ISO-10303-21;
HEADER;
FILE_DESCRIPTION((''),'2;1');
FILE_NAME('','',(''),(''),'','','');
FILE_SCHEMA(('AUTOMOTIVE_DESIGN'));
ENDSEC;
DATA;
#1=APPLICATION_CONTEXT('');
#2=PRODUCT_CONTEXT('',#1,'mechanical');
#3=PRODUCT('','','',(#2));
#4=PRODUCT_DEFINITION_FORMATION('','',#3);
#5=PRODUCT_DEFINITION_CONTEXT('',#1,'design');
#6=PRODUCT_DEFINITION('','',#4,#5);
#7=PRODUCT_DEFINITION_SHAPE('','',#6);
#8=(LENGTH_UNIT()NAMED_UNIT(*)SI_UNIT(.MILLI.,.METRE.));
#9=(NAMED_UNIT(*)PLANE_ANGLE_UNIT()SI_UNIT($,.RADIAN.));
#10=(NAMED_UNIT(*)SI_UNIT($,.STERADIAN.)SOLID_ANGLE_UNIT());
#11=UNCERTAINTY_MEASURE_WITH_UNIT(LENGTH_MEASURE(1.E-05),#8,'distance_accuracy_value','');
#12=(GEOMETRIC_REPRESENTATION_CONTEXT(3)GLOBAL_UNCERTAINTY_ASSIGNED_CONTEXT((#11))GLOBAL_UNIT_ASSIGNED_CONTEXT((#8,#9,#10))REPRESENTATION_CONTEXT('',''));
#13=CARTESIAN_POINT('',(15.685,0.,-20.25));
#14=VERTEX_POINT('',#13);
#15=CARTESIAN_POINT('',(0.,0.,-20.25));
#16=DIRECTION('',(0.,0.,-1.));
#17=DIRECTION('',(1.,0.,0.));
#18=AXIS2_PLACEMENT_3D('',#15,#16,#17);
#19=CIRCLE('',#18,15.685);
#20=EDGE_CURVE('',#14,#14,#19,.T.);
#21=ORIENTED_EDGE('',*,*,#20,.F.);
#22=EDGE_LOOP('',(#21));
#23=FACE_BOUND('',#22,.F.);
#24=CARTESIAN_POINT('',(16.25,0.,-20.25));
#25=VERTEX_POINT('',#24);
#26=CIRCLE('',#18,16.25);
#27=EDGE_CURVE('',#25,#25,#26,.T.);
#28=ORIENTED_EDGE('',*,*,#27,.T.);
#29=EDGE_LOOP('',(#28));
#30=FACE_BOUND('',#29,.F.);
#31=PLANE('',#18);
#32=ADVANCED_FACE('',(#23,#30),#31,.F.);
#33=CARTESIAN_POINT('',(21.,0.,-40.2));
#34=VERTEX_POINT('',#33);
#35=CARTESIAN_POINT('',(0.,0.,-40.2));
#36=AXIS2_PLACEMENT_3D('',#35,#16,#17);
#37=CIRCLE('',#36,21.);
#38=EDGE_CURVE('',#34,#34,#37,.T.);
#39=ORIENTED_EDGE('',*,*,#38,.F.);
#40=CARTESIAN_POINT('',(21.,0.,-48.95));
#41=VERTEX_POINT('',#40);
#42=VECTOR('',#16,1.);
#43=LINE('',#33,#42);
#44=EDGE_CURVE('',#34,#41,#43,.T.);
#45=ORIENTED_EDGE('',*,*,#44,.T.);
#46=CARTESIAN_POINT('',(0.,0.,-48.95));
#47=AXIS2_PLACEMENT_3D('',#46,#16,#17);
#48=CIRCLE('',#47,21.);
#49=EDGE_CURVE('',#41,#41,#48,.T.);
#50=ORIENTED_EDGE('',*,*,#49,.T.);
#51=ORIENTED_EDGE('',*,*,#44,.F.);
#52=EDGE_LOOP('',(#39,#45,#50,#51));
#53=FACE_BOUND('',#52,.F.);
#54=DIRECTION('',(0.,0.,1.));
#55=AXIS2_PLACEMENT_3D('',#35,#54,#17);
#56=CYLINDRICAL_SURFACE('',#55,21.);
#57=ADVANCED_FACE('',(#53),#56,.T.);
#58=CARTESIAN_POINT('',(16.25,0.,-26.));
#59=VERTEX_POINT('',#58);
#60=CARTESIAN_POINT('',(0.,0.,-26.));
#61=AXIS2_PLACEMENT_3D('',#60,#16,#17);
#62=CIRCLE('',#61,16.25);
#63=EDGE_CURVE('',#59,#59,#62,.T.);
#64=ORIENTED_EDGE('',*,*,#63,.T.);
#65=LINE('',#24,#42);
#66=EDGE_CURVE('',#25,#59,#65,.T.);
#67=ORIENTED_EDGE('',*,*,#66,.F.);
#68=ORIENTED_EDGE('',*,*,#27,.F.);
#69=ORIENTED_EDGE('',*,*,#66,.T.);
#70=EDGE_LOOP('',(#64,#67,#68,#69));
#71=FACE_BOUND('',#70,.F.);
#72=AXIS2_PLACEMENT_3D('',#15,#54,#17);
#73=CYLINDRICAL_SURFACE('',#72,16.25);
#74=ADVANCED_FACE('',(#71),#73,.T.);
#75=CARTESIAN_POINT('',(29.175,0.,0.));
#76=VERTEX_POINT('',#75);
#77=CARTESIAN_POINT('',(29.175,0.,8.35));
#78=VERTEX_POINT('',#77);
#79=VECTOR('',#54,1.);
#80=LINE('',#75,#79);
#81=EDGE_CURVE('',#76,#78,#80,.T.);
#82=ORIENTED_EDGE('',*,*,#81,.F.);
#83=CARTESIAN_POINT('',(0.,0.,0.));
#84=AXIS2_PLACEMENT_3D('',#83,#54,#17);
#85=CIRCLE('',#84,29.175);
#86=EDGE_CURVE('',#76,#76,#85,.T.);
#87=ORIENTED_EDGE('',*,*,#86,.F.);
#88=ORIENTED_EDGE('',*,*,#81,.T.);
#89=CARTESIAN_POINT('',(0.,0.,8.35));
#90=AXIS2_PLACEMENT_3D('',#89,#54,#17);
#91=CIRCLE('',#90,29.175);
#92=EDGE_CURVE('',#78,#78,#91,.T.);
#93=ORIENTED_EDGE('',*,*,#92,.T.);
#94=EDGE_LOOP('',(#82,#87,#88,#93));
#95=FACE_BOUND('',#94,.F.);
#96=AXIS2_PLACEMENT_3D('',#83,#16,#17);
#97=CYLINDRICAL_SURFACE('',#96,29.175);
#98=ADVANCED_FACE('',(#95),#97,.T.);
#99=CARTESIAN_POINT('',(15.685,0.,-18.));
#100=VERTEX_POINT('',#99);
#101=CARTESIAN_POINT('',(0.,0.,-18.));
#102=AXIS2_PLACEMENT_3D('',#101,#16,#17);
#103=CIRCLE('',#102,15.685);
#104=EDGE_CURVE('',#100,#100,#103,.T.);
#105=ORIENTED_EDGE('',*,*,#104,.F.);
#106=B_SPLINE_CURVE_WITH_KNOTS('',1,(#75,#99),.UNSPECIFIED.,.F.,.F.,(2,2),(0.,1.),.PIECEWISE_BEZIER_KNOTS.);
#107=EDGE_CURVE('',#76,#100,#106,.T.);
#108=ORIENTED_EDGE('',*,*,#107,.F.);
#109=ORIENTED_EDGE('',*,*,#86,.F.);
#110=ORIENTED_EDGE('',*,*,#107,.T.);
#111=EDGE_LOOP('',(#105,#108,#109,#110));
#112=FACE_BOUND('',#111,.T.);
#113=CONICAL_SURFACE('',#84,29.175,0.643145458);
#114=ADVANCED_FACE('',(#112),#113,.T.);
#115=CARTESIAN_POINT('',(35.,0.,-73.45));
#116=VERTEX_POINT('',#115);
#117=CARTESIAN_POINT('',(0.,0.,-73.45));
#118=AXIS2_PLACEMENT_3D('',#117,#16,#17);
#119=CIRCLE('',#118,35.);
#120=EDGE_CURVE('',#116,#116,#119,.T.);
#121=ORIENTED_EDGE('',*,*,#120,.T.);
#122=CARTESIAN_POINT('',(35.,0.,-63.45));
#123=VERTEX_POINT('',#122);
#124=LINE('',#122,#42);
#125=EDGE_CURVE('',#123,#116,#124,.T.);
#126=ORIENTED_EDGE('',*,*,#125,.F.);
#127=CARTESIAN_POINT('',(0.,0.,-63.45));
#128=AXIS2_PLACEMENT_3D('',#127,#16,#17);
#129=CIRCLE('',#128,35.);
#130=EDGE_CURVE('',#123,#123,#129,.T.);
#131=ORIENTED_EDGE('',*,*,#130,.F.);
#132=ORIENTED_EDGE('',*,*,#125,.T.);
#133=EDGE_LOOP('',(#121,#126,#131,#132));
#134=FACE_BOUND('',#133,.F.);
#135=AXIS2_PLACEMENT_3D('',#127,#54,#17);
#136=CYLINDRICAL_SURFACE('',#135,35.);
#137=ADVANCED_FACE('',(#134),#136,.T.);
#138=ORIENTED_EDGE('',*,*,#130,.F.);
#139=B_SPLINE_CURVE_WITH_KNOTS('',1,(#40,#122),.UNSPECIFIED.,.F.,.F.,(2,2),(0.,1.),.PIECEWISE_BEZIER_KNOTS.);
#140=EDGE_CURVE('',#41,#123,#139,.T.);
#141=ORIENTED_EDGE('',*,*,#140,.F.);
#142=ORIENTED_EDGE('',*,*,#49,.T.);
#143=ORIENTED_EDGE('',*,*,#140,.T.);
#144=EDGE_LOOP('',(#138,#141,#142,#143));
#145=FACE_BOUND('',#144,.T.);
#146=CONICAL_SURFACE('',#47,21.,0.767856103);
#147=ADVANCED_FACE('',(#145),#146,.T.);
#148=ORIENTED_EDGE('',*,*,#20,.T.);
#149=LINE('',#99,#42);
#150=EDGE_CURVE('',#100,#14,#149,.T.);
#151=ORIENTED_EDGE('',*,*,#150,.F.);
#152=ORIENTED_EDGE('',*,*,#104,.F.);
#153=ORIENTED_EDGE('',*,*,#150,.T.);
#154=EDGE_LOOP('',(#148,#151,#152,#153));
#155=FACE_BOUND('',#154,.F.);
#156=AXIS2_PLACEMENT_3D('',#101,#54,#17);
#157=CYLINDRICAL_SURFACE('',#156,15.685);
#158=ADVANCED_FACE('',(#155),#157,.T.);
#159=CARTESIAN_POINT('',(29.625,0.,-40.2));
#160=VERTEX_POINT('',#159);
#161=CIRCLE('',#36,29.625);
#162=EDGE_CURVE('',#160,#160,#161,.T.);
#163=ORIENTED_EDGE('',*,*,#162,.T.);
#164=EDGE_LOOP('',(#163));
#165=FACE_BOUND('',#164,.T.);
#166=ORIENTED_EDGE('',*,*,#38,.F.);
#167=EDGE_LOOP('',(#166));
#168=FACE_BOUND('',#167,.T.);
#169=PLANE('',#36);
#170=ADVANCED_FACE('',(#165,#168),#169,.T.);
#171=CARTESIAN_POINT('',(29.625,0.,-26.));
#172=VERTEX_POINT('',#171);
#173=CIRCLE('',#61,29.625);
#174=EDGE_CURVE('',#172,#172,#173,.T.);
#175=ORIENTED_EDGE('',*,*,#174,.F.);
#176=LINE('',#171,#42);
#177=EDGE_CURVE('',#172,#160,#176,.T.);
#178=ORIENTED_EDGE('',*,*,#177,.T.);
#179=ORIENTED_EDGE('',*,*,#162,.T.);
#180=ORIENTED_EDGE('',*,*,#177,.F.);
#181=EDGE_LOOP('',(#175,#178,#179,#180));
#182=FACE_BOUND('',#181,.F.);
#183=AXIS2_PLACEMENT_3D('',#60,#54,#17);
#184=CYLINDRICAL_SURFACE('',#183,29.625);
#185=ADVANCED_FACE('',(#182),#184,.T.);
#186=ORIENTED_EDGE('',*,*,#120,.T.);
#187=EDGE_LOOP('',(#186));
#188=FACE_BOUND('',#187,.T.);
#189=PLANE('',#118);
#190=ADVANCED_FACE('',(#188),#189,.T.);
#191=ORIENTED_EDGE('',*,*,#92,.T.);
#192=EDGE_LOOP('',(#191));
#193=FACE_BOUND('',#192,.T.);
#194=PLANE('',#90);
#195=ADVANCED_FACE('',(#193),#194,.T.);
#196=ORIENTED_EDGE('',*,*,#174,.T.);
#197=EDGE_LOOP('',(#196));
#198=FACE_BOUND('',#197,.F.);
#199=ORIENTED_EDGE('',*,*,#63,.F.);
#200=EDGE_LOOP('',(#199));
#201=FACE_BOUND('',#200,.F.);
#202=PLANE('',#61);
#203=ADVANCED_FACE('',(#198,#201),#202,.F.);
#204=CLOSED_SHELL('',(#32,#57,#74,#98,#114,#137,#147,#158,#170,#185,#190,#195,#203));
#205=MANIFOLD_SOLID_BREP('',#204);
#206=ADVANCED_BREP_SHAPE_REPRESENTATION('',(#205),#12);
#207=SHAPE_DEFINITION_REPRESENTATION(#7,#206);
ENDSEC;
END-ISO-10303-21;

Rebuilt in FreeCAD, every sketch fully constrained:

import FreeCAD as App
import Part
import Sketcher

V = App.Vector

doc = App.newDocument("Part")
params = doc.addObject("Spreadsheet::Sheet", "Params")
for row, (alias, value) in enumerate([
    ("sketch1_diameter", "58.35 mm"),
    ("pad1_length", "8.35 mm"),
    ("sketch2_diameter", "58.35 mm"),
    ("sketch3_diameter", "31.37 mm"),
    ("sketch4_diameter", "31.37 mm"),
    ("pad2_length", "2.25 mm"),
    ("sketch5_diameter", "32.5 mm"),
    ("pad3_length", "5.75 mm"),
    ("sketch6_diameter", "59.25 mm"),
    ("pad4_length", "14.2 mm"),
    ("sketch7_diameter", "42 mm"),
    ("pad5_length", "8.75 mm"),
    ("sketch8_diameter", "42 mm"),
    ("sketch9_diameter", "70 mm"),
    ("sketch10_diameter", "70 mm"),
    ("pad6_length", "10 mm"),
], start=1):
    params.set(f"A{row}", alias)
    params.set(f"B{row}", "=" + value)
    params.setAlias(f"B{row}", alias)

body = doc.addObject("PartDesign::Body", "Body")

# Sketch on XY plane
sketch1 = body.newObject("Sketcher::SketchObject", "Sketch")
sketch1.AttachmentSupport = (doc.getObject("XY_Plane"), [""])
sketch1.MapMode = "FlatFace"
sketch1.addGeometry(Part.Circle(V(0, 0, 0), V(0, 0, 1), 29.175), False)
sketch1.addConstraint([
    Sketcher.Constraint("Coincident", 0, 3, -1, 1),
    Sketcher.Constraint("Diameter", 0, 58.35),
])
sketch1.setExpression("Constraints[1]", "Params.sketch1_diameter")
pad1 = body.newObject("PartDesign::Pad", "Pad")
pad1.Profile = sketch1
pad1.setExpression("Length", "Params.pad1_length")

# Sketch on XY plane
sketch2 = body.newObject("Sketcher::SketchObject", "Sketch001")
sketch2.AttachmentSupport = (doc.getObject("XY_Plane"), [""])
sketch2.MapMode = "FlatFace"
sketch2.addGeometry(Part.Circle(V(0, 0, 0), V(0, 0, 1), 29.175), False)
sketch2.addConstraint([
    Sketcher.Constraint("Coincident", 0, 3, -1, 1),
    Sketcher.Constraint("Diameter", 0, 58.35),
])
sketch2.setExpression("Constraints[1]", "Params.sketch2_diameter")

# Sketch on XY plane
sketch3 = body.newObject("Sketcher::SketchObject", "Sketch002")
sketch3.AttachmentSupport = (doc.getObject("XY_Plane"), [""])
sketch3.MapMode = "FlatFace"
sketch3.AttachmentOffset = App.Placement(V(0, 0, -18), App.Rotation())
sketch3.addGeometry(Part.Circle(V(0, 0, 0), V(0, 0, 1), 15.685), False)
sketch3.addConstraint([
    Sketcher.Constraint("Coincident", 0, 3, -1, 1),
    Sketcher.Constraint("Diameter", 0, 31.37),
])
sketch3.setExpression("Constraints[1]", "Params.sketch3_diameter")

additiveloft = body.newObject("PartDesign::AdditiveLoft", "AdditiveLoft")
additiveloft.Profile = sketch2
additiveloft.Sections = [sketch3]

# Sketch on XY plane
sketch4 = body.newObject("Sketcher::SketchObject", "Sketch003")
sketch4.AttachmentSupport = (doc.getObject("XY_Plane"), [""])
sketch4.MapMode = "FlatFace"
sketch4.AttachmentOffset = App.Placement(V(0, 0, -18), App.Rotation())
sketch4.addGeometry(Part.Circle(V(0, 0, 0), V(0, 0, 1), 15.685), False)
sketch4.addConstraint([
    Sketcher.Constraint("Coincident", 0, 3, -1, 1),
    Sketcher.Constraint("Diameter", 0, 31.37),
])
sketch4.setExpression("Constraints[1]", "Params.sketch4_diameter")
pad2 = body.newObject("PartDesign::Pad", "Pad001")
pad2.Profile = sketch4
pad2.setExpression("Length", "Params.pad2_length")
pad2.Reversed = True

# Sketch on XY plane
sketch5 = body.newObject("Sketcher::SketchObject", "Sketch004")
sketch5.AttachmentSupport = (doc.getObject("XY_Plane"), [""])
sketch5.MapMode = "FlatFace"
sketch5.AttachmentOffset = App.Placement(V(0, 0, -20.25), App.Rotation())
sketch5.addGeometry(Part.Circle(V(0, 0, 0), V(0, 0, 1), 16.25), False)
sketch5.addConstraint([
    Sketcher.Constraint("Coincident", 0, 3, -1, 1),
    Sketcher.Constraint("Diameter", 0, 32.5),
])
sketch5.setExpression("Constraints[1]", "Params.sketch5_diameter")
pad3 = body.newObject("PartDesign::Pad", "Pad002")
pad3.Profile = sketch5
pad3.setExpression("Length", "Params.pad3_length")
pad3.Reversed = True

# Sketch on XY plane
sketch6 = body.newObject("Sketcher::SketchObject", "Sketch005")
sketch6.AttachmentSupport = (doc.getObject("XY_Plane"), [""])
sketch6.MapMode = "FlatFace"
sketch6.AttachmentOffset = App.Placement(V(0, 0, -26), App.Rotation())
sketch6.addGeometry(Part.Circle(V(0, 0, 0), V(0, 0, 1), 29.625), False)
sketch6.addConstraint([
    Sketcher.Constraint("Coincident", 0, 3, -1, 1),
    Sketcher.Constraint("Diameter", 0, 59.25),
])
sketch6.setExpression("Constraints[1]", "Params.sketch6_diameter")
pad4 = body.newObject("PartDesign::Pad", "Pad003")
pad4.Profile = sketch6
pad4.setExpression("Length", "Params.pad4_length")
pad4.Reversed = True

# Sketch on XY plane
sketch7 = body.newObject("Sketcher::SketchObject", "Sketch006")
sketch7.AttachmentSupport = (doc.getObject("XY_Plane"), [""])
sketch7.MapMode = "FlatFace"
sketch7.AttachmentOffset = App.Placement(V(0, 0, -40.2), App.Rotation())
sketch7.addGeometry(Part.Circle(V(0, 0, 0), V(0, 0, 1), 21), False)
sketch7.addConstraint([
    Sketcher.Constraint("Coincident", 0, 3, -1, 1),
    Sketcher.Constraint("Diameter", 0, 42.0),
])
sketch7.setExpression("Constraints[1]", "Params.sketch7_diameter")
pad5 = body.newObject("PartDesign::Pad", "Pad004")
pad5.Profile = sketch7
pad5.setExpression("Length", "Params.pad5_length")
pad5.Reversed = True

# Sketch on XY plane
sketch8 = body.newObject("Sketcher::SketchObject", "Sketch007")
sketch8.AttachmentSupport = (doc.getObject("XY_Plane"), [""])
sketch8.MapMode = "FlatFace"
sketch8.AttachmentOffset = App.Placement(V(0, 0, -48.95), App.Rotation())
sketch8.addGeometry(Part.Circle(V(0, 0, 0), V(0, 0, 1), 21), False)
sketch8.addConstraint([
    Sketcher.Constraint("Coincident", 0, 3, -1, 1),
    Sketcher.Constraint("Diameter", 0, 42.0),
])
sketch8.setExpression("Constraints[1]", "Params.sketch8_diameter")

# Sketch on XY plane
sketch9 = body.newObject("Sketcher::SketchObject", "Sketch008")
sketch9.AttachmentSupport = (doc.getObject("XY_Plane"), [""])
sketch9.MapMode = "FlatFace"
sketch9.AttachmentOffset = App.Placement(V(0, 0, -63.45), App.Rotation())
sketch9.addGeometry(Part.Circle(V(0, 0, 0), V(0, 0, 1), 35), False)
sketch9.addConstraint([
    Sketcher.Constraint("Coincident", 0, 3, -1, 1),
    Sketcher.Constraint("Diameter", 0, 70.0),
])
sketch9.setExpression("Constraints[1]", "Params.sketch9_diameter")

additiveloft2 = body.newObject("PartDesign::AdditiveLoft", "AdditiveLoft001")
additiveloft2.Profile = sketch8
additiveloft2.Sections = [sketch9]

# Sketch on XY plane
sketch10 = body.newObject("Sketcher::SketchObject", "Sketch009")
sketch10.AttachmentSupport = (doc.getObject("XY_Plane"), [""])
sketch10.MapMode = "FlatFace"
sketch10.AttachmentOffset = App.Placement(V(0, 0, -63.45), App.Rotation())
sketch10.addGeometry(Part.Circle(V(0, 0, 0), V(0, 0, 1), 35), False)
sketch10.addConstraint([
    Sketcher.Constraint("Coincident", 0, 3, -1, 1),
    Sketcher.Constraint("Diameter", 0, 70.0),
])
sketch10.setExpression("Constraints[1]", "Params.sketch10_diameter")
pad6 = body.newObject("PartDesign::Pad", "Pad005")
pad6.Profile = sketch10
pad6.setExpression("Length", "Params.pad6_length")
pad6.Reversed = True

doc.recompute()
